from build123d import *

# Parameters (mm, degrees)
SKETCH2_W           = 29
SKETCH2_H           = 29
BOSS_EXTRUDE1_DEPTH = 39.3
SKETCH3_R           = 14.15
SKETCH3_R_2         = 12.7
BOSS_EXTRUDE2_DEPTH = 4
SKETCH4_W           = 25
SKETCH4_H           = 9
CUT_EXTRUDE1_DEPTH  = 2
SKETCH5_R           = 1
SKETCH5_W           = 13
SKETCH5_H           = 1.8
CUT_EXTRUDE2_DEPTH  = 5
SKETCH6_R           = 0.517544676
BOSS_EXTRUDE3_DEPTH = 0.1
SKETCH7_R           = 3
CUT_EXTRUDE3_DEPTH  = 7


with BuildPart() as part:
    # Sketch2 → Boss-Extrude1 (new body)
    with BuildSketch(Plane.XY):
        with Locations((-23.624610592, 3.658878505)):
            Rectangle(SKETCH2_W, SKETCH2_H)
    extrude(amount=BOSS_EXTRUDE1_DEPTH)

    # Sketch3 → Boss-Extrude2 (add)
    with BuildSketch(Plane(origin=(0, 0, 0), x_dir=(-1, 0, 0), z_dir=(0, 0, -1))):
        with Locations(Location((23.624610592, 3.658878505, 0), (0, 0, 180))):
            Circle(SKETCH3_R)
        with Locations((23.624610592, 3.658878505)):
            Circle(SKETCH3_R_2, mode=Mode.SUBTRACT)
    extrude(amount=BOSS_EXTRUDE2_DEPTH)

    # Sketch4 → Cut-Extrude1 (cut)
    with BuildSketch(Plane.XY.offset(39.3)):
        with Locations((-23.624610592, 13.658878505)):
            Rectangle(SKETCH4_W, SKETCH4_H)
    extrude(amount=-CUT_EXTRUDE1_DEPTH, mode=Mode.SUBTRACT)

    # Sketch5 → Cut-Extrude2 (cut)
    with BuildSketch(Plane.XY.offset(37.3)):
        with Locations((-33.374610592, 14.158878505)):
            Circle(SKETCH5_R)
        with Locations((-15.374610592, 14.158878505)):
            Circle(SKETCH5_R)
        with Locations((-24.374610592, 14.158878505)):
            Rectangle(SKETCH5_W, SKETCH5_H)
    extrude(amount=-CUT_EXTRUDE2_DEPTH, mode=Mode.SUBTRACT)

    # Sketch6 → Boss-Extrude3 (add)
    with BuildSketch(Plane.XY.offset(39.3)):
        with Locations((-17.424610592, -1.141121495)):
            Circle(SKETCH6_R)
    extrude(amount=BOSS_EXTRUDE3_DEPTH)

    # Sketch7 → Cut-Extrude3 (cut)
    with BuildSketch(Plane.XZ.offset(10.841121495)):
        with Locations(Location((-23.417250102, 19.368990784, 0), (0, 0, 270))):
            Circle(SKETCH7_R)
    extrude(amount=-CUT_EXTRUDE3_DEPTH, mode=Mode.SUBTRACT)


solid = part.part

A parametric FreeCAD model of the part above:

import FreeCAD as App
import Part
import Sketcher
Q = App.Units.Quantity

doc = App.newDocument("Part")
body = doc.addObject("PartDesign::Body", "Body")

# Sketch on XY plane
sketch1 = body.newObject("Sketcher::SketchObject", "Sketch")
sketch1.AttachmentSupport = (doc.getObject("XY_Plane"), [""])
sketch1.MapMode = "FlatFace"
sketch1.addGeometry([
    Part.LineSegment(App.Vector(-38, 18, 0), App.Vector(-38, -11, 0)),
    Part.LineSegment(App.Vector(-38, -11, 0), App.Vector(-9, -11, 0)),
    Part.LineSegment(App.Vector(-9, -11, 0), App.Vector(-9, 18, 0)),
    Part.LineSegment(App.Vector(-9, 18, 0), App.Vector(-38, 18, 0)),
], False)
sketch1.addConstraint([
    Sketcher.Constraint("Coincident", 0, 2, 1, 1),
    Sketcher.Constraint("Coincident", 1, 2, 2, 1),
    Sketcher.Constraint("Coincident", 2, 2, 3, 1),
    Sketcher.Constraint("Coincident", 3, 2, 0, 1),
    Sketcher.Constraint("Vertical", 0),
    Sketcher.Constraint("Horizontal", 1),
    Sketcher.Constraint("Vertical", 2),
    Sketcher.Constraint("Horizontal", 3),
    Sketcher.Constraint("Equal", 3, 0),
    Sketcher.Constraint("DistanceX", 1, 1, 1, 2, Q("29 mm")),
    Sketcher.Constraint("DistanceX", 0, 2, -1, 1, Q("38.124611 mm")),
    Sketcher.Constraint("DistanceY", 0, 2, -1, 1, Q("10.841121 mm")),
])
pad1 = body.newObject("PartDesign::Pad", "Pad")
pad1.Profile = sketch1
pad1.Length = 39.3

# Sketch on XY plane
sketch2 = body.newObject("Sketcher::SketchObject", "Sketch001")
sketch2.AttachmentSupport = (doc.getObject("XY_Plane"), [""])
sketch2.MapMode = "FlatFace"
sketch2.addGeometry([
    Part.Circle(App.Vector(-24, 4, 0), App.Vector(0, 0, 1), 14),
    Part.Circle(App.Vector(-24, 4, 0), App.Vector(0, 0, 1), 13),
], False)
sketch2.addConstraint([
    Sketcher.Constraint("Coincident", 1, 3, 0, 3),
    Sketcher.Constraint("Diameter", 0, Q("28.3 mm")),
    Sketcher.Constraint("Diameter", 1, Q("25.4 mm")),
    Sketcher.Constraint("DistanceX", 0, 3, -1, 1, Q("23.624611 mm")),
    Sketcher.Constraint("DistanceY", -1, 1, 0, 3, Q("3.658879 mm")),
])
pad2 = body.newObject("PartDesign::Pad", "Pad001")
pad2.Profile = sketch2
pad2.Length = 4
pad2.Reversed = True

# Sketch on XY plane
sketch3 = body.newObject("Sketcher::SketchObject", "Sketch002")
sketch3.AttachmentSupport = (doc.getObject("XY_Plane"), [""])
sketch3.MapMode = "FlatFace"
sketch3.AttachmentOffset = App.Placement(App.Vector(0, 0, 39.3), App.Rotation())
sketch3.addGeometry([
    Part.LineSegment(App.Vector(-36, 18, 0), App.Vector(-36, 9, 0)),
    Part.LineSegment(App.Vector(-36, 9, 0), App.Vector(-11, 9, 0)),
    Part.LineSegment(App.Vector(-11, 9, 0), App.Vector(-11, 18, 0)),
    Part.LineSegment(App.Vector(-11, 18, 0), App.Vector(-36, 18, 0)),
], False)
sketch3.addConstraint([
    Sketcher.Constraint("Coincident", 0, 2, 1, 1),
    Sketcher.Constraint("Coincident", 1, 2, 2, 1),
    Sketcher.Constraint("Coincident", 2, 2, 3, 1),
    Sketcher.Constraint("Coincident", 3, 2, 0, 1),
    Sketcher.Constraint("Vertical", 0),
    Sketcher.Constraint("Horizontal", 1),
    Sketcher.Constraint("Vertical", 2),
    Sketcher.Constraint("Horizontal", 3),
    Sketcher.Constraint("DistanceX", 1, 1, 1, 2, Q("25 mm")),
    Sketcher.Constraint("DistanceY", 0, 2, 0, 1, Q("9 mm")),
    Sketcher.Constraint("DistanceX", 0, 2, -1, 1, Q("36.124611 mm")),
    Sketcher.Constraint("DistanceY", -1, 1, 0, 2, Q("9.158879 mm")),
])
pocket1 = body.newObject("PartDesign::Pocket", "Pocket")
pocket1.Profile = sketch3
pocket1.Length = 2

# Sketch on XY plane
sketch4 = body.newObject("Sketcher::SketchObject", "Sketch003")
sketch4.AttachmentSupport = (doc.getObject("XY_Plane"), [""])
sketch4.MapMode = "FlatFace"
sketch4.AttachmentOffset = App.Placement(App.Vector(0, 0, 37.3), App.Rotation())
sketch4.addGeometry([
    Part.Circle(App.Vector(-33.4, 14.2, 0), App.Vector(0, 0, 1), 1),  # 0
    Part.Circle(App.Vector(-15.4, 14.2, 0), App.Vector(0, 0, 1), 1),  # 1
    Part.LineSegment(App.Vector(-30.9, 15.1, 0), App.Vector(-30.9, 13.3, 0)),  # 2
    Part.LineSegment(App.Vector(-30.9, 13.3, 0), App.Vector(-17.9, 13.3, 0)),  # 3
    Part.LineSegment(App.Vector(-17.9, 13.3, 0), App.Vector(-17.9, 15.1, 0)),  # 4
    Part.LineSegment(App.Vector(-17.9, 15.1, 0), App.Vector(-30.9, 15.1, 0)),  # 5
], False)
sketch4.addConstraint([
    Sketcher.Constraint("Coincident", 2, 2, 3, 1),
    Sketcher.Constraint("Coincident", 3, 2, 4, 1),
    Sketcher.Constraint("Coincident", 4, 2, 5, 1),
    Sketcher.Constraint("Coincident", 5, 2, 2, 1),
    Sketcher.Constraint("Vertical", 2),
    Sketcher.Constraint("Horizontal", 3),
    Sketcher.Constraint("Vertical", 4),
    Sketcher.Constraint("Horizontal", 5),
    Sketcher.Constraint("Equal", 0, 1),
    Sketcher.Constraint("Horizontal", 0, 3, 1, 3),
    Sketcher.Constraint("Diameter", 0, Q("2 mm")),
    Sketcher.Constraint("DistanceX", 3, 1, 3, 2, Q("13 mm")),
    Sketcher.Constraint("DistanceY", 2, 2, 2, 1, Q("1.8 mm")),
    Sketcher.Constraint("DistanceX", 0, 3, 1, 3, Q("18 mm")),
    Sketcher.Constraint("DistanceX", 0, 3, 2, 2, Q("2.5 mm")),
    Sketcher.Constraint("DistanceY", 2, 2, 0, 3, Q("0.9 mm")),
    Sketcher.Constraint("DistanceX", 0, 3, -1, 1, Q("33.374611 mm")),
    Sketcher.Constraint("DistanceY", -1, 1, 0, 3, Q("14.158879 mm")),
])
pocket2 = body.newObject("PartDesign::Pocket", "Pocket001")
pocket2.Profile = sketch4
pocket2.Length = 5

# Sketch on XY plane
sketch5 = body.newObject("Sketcher::SketchObject", "Sketch004")
sketch5.AttachmentSupport = (doc.getObject("XY_Plane"), [""])
sketch5.MapMode = "FlatFace"
sketch5.AttachmentOffset = App.Placement(App.Vector(0, 0, 39.3), App.Rotation())
sketch5.addGeometry(Part.Circle(App.Vector(-17.4, -1.1, 0), App.Vector(0, 0, 1), 0.5), False)
sketch5.addConstraint([
    Sketcher.Constraint("Diameter", 0, Q("1.035089 mm")),
    Sketcher.Constraint("DistanceX", 0, 3, -1, 1, Q("17.424611 mm")),
    Sketcher.Constraint("DistanceY", 0, 3, -1, 1, Q("1.141121 mm")),
])
pad3 = body.newObject("PartDesign::Pad", "Pad002")
pad3.Profile = sketch5
pad3.Length = 0.1

# Sketch on XZ plane
sketch6 = body.newObject("Sketcher::SketchObject", "Sketch005")
sketch6.AttachmentSupport = (doc.getObject("XZ_Plane"), [""])
sketch6.MapMode = "FlatFace"
sketch6.AttachmentOffset = App.Placement(App.Vector(0, 0, 10.841121), App.Rotation())
sketch6.addGeometry(Part.Circle(App.Vector(-23.4, 19.4, 0), App.Vector(0, 0, 1), 3), False)
sketch6.addConstraint([
    Sketcher.Constraint("Diameter", 0, Q("6 mm")),
    Sketcher.Constraint("DistanceX", 0, 3, -1, 1, Q("23.41725 mm")),
    Sketcher.Constraint("DistanceY", -1, 1, 0, 3, Q("19.368991 mm")),
])
pocket3 = body.newObject("PartDesign::Pocket", "Pocket002")
pocket3.Profile = sketch6
pocket3.Length = 7

doc.recompute()
